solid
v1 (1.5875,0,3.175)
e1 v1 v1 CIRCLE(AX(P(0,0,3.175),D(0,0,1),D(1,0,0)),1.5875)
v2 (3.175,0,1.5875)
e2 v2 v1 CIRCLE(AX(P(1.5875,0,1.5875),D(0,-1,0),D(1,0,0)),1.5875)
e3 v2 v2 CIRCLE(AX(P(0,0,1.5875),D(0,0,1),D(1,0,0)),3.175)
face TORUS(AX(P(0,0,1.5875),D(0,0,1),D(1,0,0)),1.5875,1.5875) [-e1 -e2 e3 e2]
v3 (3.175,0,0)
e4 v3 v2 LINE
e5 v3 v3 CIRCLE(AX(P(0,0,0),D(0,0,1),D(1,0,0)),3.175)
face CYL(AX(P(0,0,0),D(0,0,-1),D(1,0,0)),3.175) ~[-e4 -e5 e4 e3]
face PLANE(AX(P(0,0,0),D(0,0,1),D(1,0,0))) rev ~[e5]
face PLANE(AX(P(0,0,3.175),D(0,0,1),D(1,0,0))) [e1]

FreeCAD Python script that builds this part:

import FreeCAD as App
import Part
import Sketcher
Q = App.Units.Quantity


def edges_at(feature, points):
    """Names of the edges that pass closest to the given points."""
    edges = feature.Shape.Edges
    near = lambda p: min(range(len(edges)), key=lambda i: edges[i].distToShape(Part.Vertex(*p))[0])
    return sorted({f"Edge{near(p) + 1}" for p in points})

doc = App.newDocument("Part")
params = doc.addObject("Spreadsheet::Sheet", "Params")
for row, (alias, value) in enumerate([
    ("sketch1_diameter", "0.25 in"),
    ("pad1_length", "0.125 in"),
    ("fillet_radius", "0.0625 in"),
], start=1):
    params.set(f"A{row}", alias)
    params.set(f"B{row}", "=" + value)
    params.setAlias(f"B{row}", alias)

body = doc.addObject("PartDesign::Body", "Body")

# Sketch on XY plane
sketch1 = body.newObject("Sketcher::SketchObject", "Sketch")
sketch1.AttachmentSupport = (doc.getObject("XY_Plane"), [""])
sketch1.MapMode = "FlatFace"
sketch1.addGeometry(Part.Circle(App.Vector(0, 0, 0), App.Vector(0, 0, 1), 3.2), False)
sketch1.addConstraint([
    Sketcher.Constraint("Coincident", 0, 3, -1, 1),
    Sketcher.Constraint("Diameter", 0, Q("0.25 in")),
])
sketch1.setExpression("Constraints[1]", "Params.sketch1_diameter")
pad1 = body.newObject("PartDesign::Pad", "Pad")
pad1.Profile = sketch1
pad1.setExpression("Length", "Params.pad1_length")
doc.recompute()

fillet = body.newObject("PartDesign::Fillet", "Fillet")
fillet.Base = (pad1, edges_at(pad1, [(-3.175, 0, 3.175)]))
fillet.setExpression("Radius", "Params.fillet_radius")

doc.recompute()
